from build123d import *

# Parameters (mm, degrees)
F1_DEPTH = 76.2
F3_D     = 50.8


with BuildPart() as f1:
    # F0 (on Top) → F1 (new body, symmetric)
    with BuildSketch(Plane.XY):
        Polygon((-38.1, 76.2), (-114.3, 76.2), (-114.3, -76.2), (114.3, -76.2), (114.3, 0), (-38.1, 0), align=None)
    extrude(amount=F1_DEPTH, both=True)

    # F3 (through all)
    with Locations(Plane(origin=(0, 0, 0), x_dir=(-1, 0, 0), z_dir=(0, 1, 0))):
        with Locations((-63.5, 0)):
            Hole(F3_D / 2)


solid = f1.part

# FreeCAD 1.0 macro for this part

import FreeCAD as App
import Part
import Sketcher

V = App.Vector
Q = App.Units.Quantity


def add_polygon(sketch, points):
    """Adds a closed chain of lines whose ends are joined by coincident constraints."""
    first, n = sketch.GeometryCount, len(points)
    for a, b in zip(points, points[1:] + points[:1]):
        sketch.addGeometry(Part.LineSegment(App.Vector(*a, 0), App.Vector(*b, 0)), False)
    for i in range(n):
        sketch.addConstraint(Sketcher.Constraint("Coincident", first + i, 2, first + (i + 1) % n, 1))

doc = App.newDocument("Part")
params = doc.addObject("Spreadsheet::Sheet", "Params")
for row, (alias, value) in enumerate([
    ("sketch1_width", "3 in"),
    ("pad1_length", "6 in"),
    ("sketch2_diameter", "2 in"),
    ("hole_diameter", "2 in"),
], start=1):
    params.set(f"A{row}", alias)
    params.set(f"B{row}", "=" + value)
    params.setAlias(f"B{row}", alias)

body = doc.addObject("PartDesign::Body", "Body")

# Sketch on XY plane
sketch1 = body.newObject("Sketcher::SketchObject", "Sketch")
sketch1.AttachmentSupport = (doc.getObject("XY_Plane"), [""])
sketch1.MapMode = "FlatFace"
add_polygon(sketch1, [(-38, 76), (-114, 76), (-114, -76), (114, -76), (114, 0), (-38, 0)])  # lines 0-5
sketch1.addConstraint(Sketcher.Constraint("Horizontal", 0))
sketch1.addConstraint(Sketcher.Constraint("Vertical", 1))
sketch1.addConstraint(Sketcher.Constraint("Horizontal", 2))
sketch1.addConstraint(Sketcher.Constraint("Vertical", 3))
sketch1.addConstraint(Sketcher.Constraint("Horizontal", 4))
sketch1.addConstraint(Sketcher.Constraint("Vertical", 5))
sketch1.addConstraint(Sketcher.Constraint("Symmetric", 0, 2, 2, 2, -1, 1))
sketch1.addConstraint(Sketcher.Constraint("PointOnObject", 3, 2, -1))
sketch1.addConstraint(Sketcher.Constraint("Equal", 4, 1))
sketch1.addConstraint(Sketcher.Constraint("Equal", 0, 3))
sketch1.addConstraint(Sketcher.Constraint("DistanceX", 0, 2, 0, 1, Q("3 in")))
sketch1.setExpression("Constraints[16]", "Params.sketch1_width")
pad1 = body.newObject("PartDesign::Pad", "Pad")
pad1.Profile = sketch1
pad1.setExpression("Length", "Params.pad1_length")
pad1.Midplane = True

# Sketch on XZ plane
sketch2 = body.newObject("Sketcher::SketchObject", "Sketch001")
sketch2.AttachmentSupport = (doc.getObject("XZ_Plane"), [""])
sketch2.MapMode = "FlatFace"
sketch2.addGeometry(Part.Circle(V(64, 0, 0), V(0, 0, 1), 25), False)
sketch2.addConstraint(Sketcher.Constraint("PointOnObject", 0, 3, -1))
sketch2.addConstraint(Sketcher.Constraint("Diameter", 0, Q("2 in")))
sketch2.addConstraint(Sketcher.Constraint("DistanceX", -1, 1, 0, 3, Q("2.5 in")))
sketch2.setExpression("Constraints[1]", "Params.sketch2_diameter")
doc.recompute()
hole = body.newObject("PartDesign::Hole", "Hole")
hole.Profile = sketch2
hole.ThreadType = "None"
hole.setExpression("Diameter", "Params.hole_diameter")
hole.DepthType = "ThroughAll"
hole.Reversed = True

doc.recompute()
